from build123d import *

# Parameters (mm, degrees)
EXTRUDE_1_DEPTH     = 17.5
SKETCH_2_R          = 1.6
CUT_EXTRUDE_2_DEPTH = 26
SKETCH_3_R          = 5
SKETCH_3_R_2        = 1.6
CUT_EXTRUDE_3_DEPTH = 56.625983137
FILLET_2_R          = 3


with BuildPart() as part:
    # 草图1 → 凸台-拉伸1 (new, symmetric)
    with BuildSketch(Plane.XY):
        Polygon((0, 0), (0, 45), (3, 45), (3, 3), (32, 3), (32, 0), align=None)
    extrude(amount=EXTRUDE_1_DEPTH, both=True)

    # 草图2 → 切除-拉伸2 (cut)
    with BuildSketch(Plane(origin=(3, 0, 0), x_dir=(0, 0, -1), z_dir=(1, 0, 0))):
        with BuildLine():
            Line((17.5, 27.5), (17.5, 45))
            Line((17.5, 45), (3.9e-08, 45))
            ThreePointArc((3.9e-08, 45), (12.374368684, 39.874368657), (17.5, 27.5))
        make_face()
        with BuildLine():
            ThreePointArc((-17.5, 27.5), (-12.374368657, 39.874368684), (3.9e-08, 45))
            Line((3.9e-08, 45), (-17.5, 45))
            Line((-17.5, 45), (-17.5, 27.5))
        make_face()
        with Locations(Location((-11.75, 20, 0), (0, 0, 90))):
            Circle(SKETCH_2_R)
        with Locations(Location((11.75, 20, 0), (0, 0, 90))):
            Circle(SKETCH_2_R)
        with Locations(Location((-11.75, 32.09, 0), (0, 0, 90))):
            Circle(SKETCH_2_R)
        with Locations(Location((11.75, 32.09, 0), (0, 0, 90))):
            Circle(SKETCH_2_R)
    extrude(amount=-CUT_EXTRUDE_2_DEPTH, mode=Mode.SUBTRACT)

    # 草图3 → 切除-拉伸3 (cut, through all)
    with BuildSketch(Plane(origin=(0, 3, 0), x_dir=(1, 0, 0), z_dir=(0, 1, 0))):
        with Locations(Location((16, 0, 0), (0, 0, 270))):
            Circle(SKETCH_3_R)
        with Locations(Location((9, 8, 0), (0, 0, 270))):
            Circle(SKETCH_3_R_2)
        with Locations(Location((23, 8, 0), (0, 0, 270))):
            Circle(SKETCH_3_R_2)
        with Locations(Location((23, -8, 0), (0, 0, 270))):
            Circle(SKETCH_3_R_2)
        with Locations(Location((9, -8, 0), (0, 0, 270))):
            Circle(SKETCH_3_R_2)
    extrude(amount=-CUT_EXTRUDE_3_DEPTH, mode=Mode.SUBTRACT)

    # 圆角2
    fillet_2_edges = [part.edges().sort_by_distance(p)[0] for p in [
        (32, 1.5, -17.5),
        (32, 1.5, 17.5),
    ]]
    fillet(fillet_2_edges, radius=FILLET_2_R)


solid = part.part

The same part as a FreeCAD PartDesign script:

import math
import FreeCAD as App
import Part
import Sketcher
from FreeCAD import Vector


def edges_at(feature, points):
    """Names of the edges that pass closest to the given points."""
    edges = feature.Shape.Edges
    near = lambda p: min(range(len(edges)), key=lambda i: edges[i].distToShape(Part.Vertex(*p))[0])
    return sorted({f"Edge{near(p) + 1}" for p in points})


def add_polygon(sketch, points):
    """Adds a closed chain of lines whose ends are joined by coincident constraints."""
    first, n = sketch.GeometryCount, len(points)
    for a, b in zip(points, points[1:] + points[:1]):
        sketch.addGeometry(Part.LineSegment(App.Vector(*a, 0), App.Vector(*b, 0)), False)
    for i in range(n):
        sketch.addConstraint(Sketcher.Constraint("Coincident", first + i, 2, first + (i + 1) % n, 1))

doc = App.newDocument("Part")
params = doc.addObject("Spreadsheet::Sheet", "Params")
for row, (alias, value) in enumerate([
    ("sketch1_width", "32 mm"),
    ("sketch1_width2", "29 mm"),
    ("sketch1_height", "45 mm"),
    ("pad1_length", "35 mm"),
    ("sketch2_diameter", "3.2 mm"),
    ("sketch2_radius", "17.5 mm"),
    ("pocket1_length", "26 mm"),
    ("sketch3_diameter", "10 mm"),
    ("sketch3_diameter2", "3.2 mm"),
    ("fillet_radius", "3 mm"),
], start=1):
    params.set(f"A{row}", alias)
    params.set(f"B{row}", "=" + value)
    params.setAlias(f"B{row}", alias)

body = doc.addObject("PartDesign::Body", "Body")

sketch1 = body.newObject("Sketcher::SketchObject", "Sketch")
sketch1.AttachmentSupport = (doc.getObject("XY_Plane"), [""])
sketch1.MapMode = "FlatFace"
add_polygon(sketch1, [(0, 45), (0, 0), (32, 0), (32, 3), (3, 3), (3, 45)])
sketch1.addConstraint([
    Sketcher.Constraint("Vertical", 0),
    Sketcher.Constraint("Horizontal", 1),
    Sketcher.Constraint("Vertical", 2),
    Sketcher.Constraint("Horizontal", 3),
    Sketcher.Constraint("Vertical", 4),
    Sketcher.Constraint("Horizontal", 5),
    Sketcher.Constraint("Coincident", 0, 2, -1, 1),
    Sketcher.Constraint("Equal", 5, 2),
    Sketcher.Constraint("DistanceX", 1, 1, 1, 2, 32.0),
    Sketcher.Constraint("DistanceX", 3, 2, 3, 1, 29.0),
    Sketcher.Constraint("DistanceY", 0, 2, 0, 1, 45.0),
])
sketch1.setExpression("Constraints[14]", "Params.sketch1_width")
sketch1.setExpression("Constraints[15]", "Params.sketch1_width2")
sketch1.setExpression("Constraints[16]", "Params.sketch1_height")
pad1 = body.newObject("PartDesign::Pad", "Pad")
pad1.Profile = sketch1
pad1.setExpression("Length", "Params.pad1_length")
pad1.Midplane = True

sketch2 = body.newObject("Sketcher::SketchObject", "Sketch001")
sketch2.AttachmentSupport = (doc.getObject("YZ_Plane"), [""])
sketch2.MapMode = "FlatFace"
sketch2.AttachmentOffset = App.Placement(Vector(0, 0, 3), App.Rotation())
sketch2.addGeometry([
    Part.LineSegment(Vector(27.5, -17.5, 0), Vector(45, -17.5, 0)),
    Part.LineSegment(Vector(45, -17.5, 0), Vector(45, 0, 0)),
    Part.ArcOfCircle(Part.Circle(Vector(27.5, 0, 0), Vector(0, 0, 1), 17.5), math.radians(-90), math.radians(0)),
    Part.ArcOfCircle(Part.Circle(Vector(27.5, 0, 0), Vector(0, 0, 1), 17.5), math.radians(0), math.radians(90)),
    Part.LineSegment(Vector(45, 0, 0), Vector(45, 17.5, 0)),
    Part.LineSegment(Vector(45, 17.5, 0), Vector(27.5, 17.5, 0)),
    Part.Circle(Vector(20, 11.8, 0), Vector(0, 0, 1), 1.6),
    Part.Circle(Vector(20, -11.8, 0), Vector(0, 0, 1), 1.6),
    Part.Circle(Vector(32.1, 11.8, 0), Vector(0, 0, 1), 1.6),
    Part.Circle(Vector(32.1, -11.8, 0), Vector(0, 0, 1), 1.6),
], False)
sketch2.addConstraint([
    Sketcher.Constraint("Coincident", 0, 2, 1, 1),
    Sketcher.Constraint("Tangent", 1, 2, 2, 2),
    Sketcher.Constraint("Tangent", 2, 1, 0, 1),
    Sketcher.Constraint("Tangent", 3, 1, 4, 1),
    Sketcher.Constraint("Coincident", 4, 2, 5, 1),
    Sketcher.Constraint("Tangent", 5, 2, 3, 2),
    Sketcher.Constraint("Horizontal", 0),
    Sketcher.Constraint("Vertical", 1),
    Sketcher.Constraint("Vertical", 4),
    Sketcher.Constraint("Horizontal", 5),
    Sketcher.Constraint("Coincident", 3, 3, 2, 3),
    Sketcher.Constraint("Equal", 2, 3),
    Sketcher.Constraint("Equal", 6, 7),
    Sketcher.Constraint("Equal", 7, 8),
    Sketcher.Constraint("Equal", 8, 9),
    Sketcher.Constraint("Symmetric", 6, 3, 7, 3, -1),
    Sketcher.Constraint("Symmetric", 8, 3, 9, 3, -1),
    Sketcher.Constraint("PointOnObject", 2, 3, -1),
    Sketcher.Constraint("Horizontal", 6, 3, 8, 3),
    Sketcher.Constraint("Diameter", 6, 3.2),
    Sketcher.Constraint("Radius", 2, 17.5),
    Sketcher.Constraint("DistanceX", -1, 1, 6, 3, 20.0),
    Sketcher.Constraint("DistanceX", -1, 1, 0, 2, 45.0),
    Sketcher.Constraint("DistanceY", 7, 3, 6, 3, 23.5),
    Sketcher.Constraint("DistanceX", -1, 1, 8, 3, 32.09),
])
sketch2.setExpression("Constraints[19]", "Params.sketch2_diameter")
sketch2.setExpression("Constraints[20]", "Params.sketch2_radius")
pocket1 = body.newObject("PartDesign::Pocket", "Pocket")
pocket1.Profile = sketch2
pocket1.setExpression("Length", "Params.pocket1_length")

sketch3 = body.newObject("Sketcher::SketchObject", "Sketch002")
sketch3.AttachmentSupport = (doc.getObject("XZ_Plane"), [""])
sketch3.MapMode = "FlatFace"
sketch3.AttachmentOffset = App.Placement(Vector(0, 0, -3), App.Rotation())
sketch3.addGeometry([
    Part.Circle(Vector(16, 0, 0), Vector(0, 0, 1), 5),
    Part.Circle(Vector(9, -8, 0), Vector(0, 0, 1), 1.6),
    Part.Circle(Vector(23, -8, 0), Vector(0, 0, 1), 1.6),
    Part.Circle(Vector(23, 8, 0), Vector(0, 0, 1), 1.6),
    Part.Circle(Vector(9, 8, 0), Vector(0, 0, 1), 1.6),
], False)
sketch3.addConstraint([
    Sketcher.Constraint("Equal", 1, 2),
    Sketcher.Constraint("Equal", 2, 3),
    Sketcher.Constraint("Equal", 3, 4),
    Sketcher.Constraint("Symmetric", 2, 3, 3, 3, -1),
    Sketcher.Constraint("Symmetric", 1, 3, 4, 3, -1),
    Sketcher.Constraint("PointOnObject", 0, 3, -1),
    Sketcher.Constraint("Horizontal", 1, 3, 2, 3),
    Sketcher.Constraint("Diameter", 0, 10.0),
    Sketcher.Constraint("Diameter", 1, 3.2),
    Sketcher.Constraint("DistanceX", -1, 1, 0, 3, 16.0),
    Sketcher.Constraint("DistanceX", -1, 1, 1, 3, 9.0),
    Sketcher.Constraint("DistanceY", 1, 3, -1, 1, 8.0),
    Sketcher.Constraint("DistanceX", -1, 1, 2, 3, 23.0),
])
sketch3.setExpression("Constraints[7]", "Params.sketch3_diameter")
sketch3.setExpression("Constraints[8]", "Params.sketch3_diameter2")
pocket2 = body.newObject("PartDesign::Pocket", "Pocket001")
pocket2.Profile = sketch3
pocket2.Type = "ThroughAll"
pocket2.Reversed = True
doc.recompute()

fillet = body.newObject("PartDesign::Fillet", "Fillet")
fillet.Base = (pocket2, edges_at(pocket2, [(32, 1.5, -17.5), (32, 1.5, 17.5)]))
fillet.setExpression("Radius", "Params.fillet_radius")

doc.recompute()
